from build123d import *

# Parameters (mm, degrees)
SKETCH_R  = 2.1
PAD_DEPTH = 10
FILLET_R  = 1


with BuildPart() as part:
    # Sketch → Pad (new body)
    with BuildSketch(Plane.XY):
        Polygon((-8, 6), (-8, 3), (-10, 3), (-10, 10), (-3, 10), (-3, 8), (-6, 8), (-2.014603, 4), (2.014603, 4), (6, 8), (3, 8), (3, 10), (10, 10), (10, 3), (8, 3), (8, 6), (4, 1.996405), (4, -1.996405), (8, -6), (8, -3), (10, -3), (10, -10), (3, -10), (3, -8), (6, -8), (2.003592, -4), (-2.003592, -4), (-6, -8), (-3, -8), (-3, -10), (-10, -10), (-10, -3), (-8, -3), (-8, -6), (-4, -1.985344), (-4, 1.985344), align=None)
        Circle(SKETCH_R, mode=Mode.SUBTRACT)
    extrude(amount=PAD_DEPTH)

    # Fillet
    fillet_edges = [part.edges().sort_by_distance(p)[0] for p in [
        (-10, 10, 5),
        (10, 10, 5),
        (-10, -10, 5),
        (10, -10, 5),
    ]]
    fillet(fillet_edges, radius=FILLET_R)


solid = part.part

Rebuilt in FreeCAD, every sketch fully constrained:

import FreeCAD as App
import Part
import Sketcher
Q = App.Units.Quantity


def edges_at(feature, points):
    """Names of the edges that pass closest to the given points."""
    edges = feature.Shape.Edges
    near = lambda p: min(range(len(edges)), key=lambda i: edges[i].distToShape(Part.Vertex(*p))[0])
    return sorted({f"Edge{near(p) + 1}" for p in points})

doc = App.newDocument("Part")
params = doc.addObject("Spreadsheet::Sheet", "Params")
for row, (alias, value) in enumerate([
    ("sketch1_diameter", "4.2 mm"),
    ("sketch1_width", "2 mm"),
    ("sketch1_width2", "7 mm"),
    ("sketch1_width3", "3 mm"),
    ("pad1_length", "10 mm"),
    ("fillet_radius", "1 mm"),
], start=1):
    params.set(f"A{row}", alias)
    params.set(f"B{row}", "=" + value)
    params.setAlias(f"B{row}", alias)

body = doc.addObject("PartDesign::Body", "Body")

sketch1 = body.newObject("Sketcher::SketchObject", "Sketch")
sketch1.AttachmentSupport = (doc.getObject("XY_Plane"), [""])
sketch1.MapMode = "FlatFace"
sketch1.addGeometry(Part.LineSegment(App.Vector(-8, 3, 0), App.Vector(-8, 6, 0)), False)
sketch1.addGeometry(Part.LineSegment(App.Vector(-8, 6, 0), App.Vector(-4, 1.985344, 0)), False)
sketch1.addGeometry(Part.LineSegment(App.Vector(-4, 1.985344, 0), App.Vector(-4, -1.985344, 0)), False)
sketch1.addGeometry(Part.LineSegment(App.Vector(-4, -1.985344, 0), App.Vector(-8, -6, 0)), False)
sketch1.addGeometry(Part.LineSegment(App.Vector(-8, -6, 0), App.Vector(-8, -3, 0)), False)
sketch1.addGeometry(Part.LineSegment(App.Vector(-8, -3, 0), App.Vector(-10, -3, 0)), False)
sketch1.addGeometry(Part.LineSegment(App.Vector(-10, -3, 0), App.Vector(-10, -10, 0)), False)
sketch1.addGeometry(Part.LineSegment(App.Vector(-10, -10, 0), App.Vector(-3, -10, 0)), False)
sketch1.addGeometry(Part.LineSegment(App.Vector(-3, -10, 0), App.Vector(-3, -8, 0)), False)
sketch1.addGeometry(Part.LineSegment(App.Vector(-3, -8, 0), App.Vector(-6, -8, 0)), False)
sketch1.addGeometry(Part.LineSegment(App.Vector(-6, -8, 0), App.Vector(-2.003592, -4, 0)), False)
sketch1.addGeometry(Part.LineSegment(App.Vector(-2.003592, -4, 0), App.Vector(2.003592, -4, 0)), False)
sketch1.addGeometry(Part.LineSegment(App.Vector(2.003592, -4, 0), App.Vector(6, -8, 0)), False)
sketch1.addGeometry(Part.LineSegment(App.Vector(6, -8, 0), App.Vector(3, -8, 0)), False)
sketch1.addGeometry(Part.LineSegment(App.Vector(3, -8, 0), App.Vector(3, -10, 0)), False)
sketch1.addGeometry(Part.LineSegment(App.Vector(3, -10, 0), App.Vector(10, -10, 0)), False)
sketch1.addGeometry(Part.LineSegment(App.Vector(10, -10, 0), App.Vector(10, -3, 0)), False)
sketch1.addGeometry(Part.LineSegment(App.Vector(10, -3, 0), App.Vector(8, -3, 0)), False)
sketch1.addGeometry(Part.LineSegment(App.Vector(8, -3, 0), App.Vector(8, -6, 0)), False)
sketch1.addGeometry(Part.LineSegment(App.Vector(8, -6, 0), App.Vector(4, -1.996405, 0)), False)
sketch1.addGeometry(Part.LineSegment(App.Vector(4, -1.996405, 0), App.Vector(4, 1.996405, 0)), False)
sketch1.addGeometry(Part.LineSegment(App.Vector(4, 1.996405, 0), App.Vector(8, 6, 0)), False)
sketch1.addGeometry(Part.LineSegment(App.Vector(8, 6, 0), App.Vector(8, 3, 0)), False)
sketch1.addGeometry(Part.LineSegment(App.Vector(8, 3, 0), App.Vector(10, 3, 0)), False)
sketch1.addGeometry(Part.LineSegment(App.Vector(10, 3, 0), App.Vector(10, 10, 0)), False)
sketch1.addGeometry(Part.LineSegment(App.Vector(10, 10, 0), App.Vector(3, 10, 0)), False)
sketch1.addGeometry(Part.LineSegment(App.Vector(3, 10, 0), App.Vector(3, 8, 0)), False)
sketch1.addGeometry(Part.LineSegment(App.Vector(3, 8, 0), App.Vector(6, 8, 0)), False)
sketch1.addGeometry(Part.LineSegment(App.Vector(6, 8, 0), App.Vector(2.014603, 4, 0)), False)
sketch1.addGeometry(Part.LineSegment(App.Vector(2.014603, 4, 0), App.Vector(-2.014603, 4, 0)), False)
sketch1.addGeometry(Part.LineSegment(App.Vector(-2.014603, 4, 0), App.Vector(-6, 8, 0)), False)
sketch1.addGeometry(Part.LineSegment(App.Vector(-6, 8, 0), App.Vector(-3, 8, 0)), False)
sketch1.addGeometry(Part.LineSegment(App.Vector(-3, 8, 0), App.Vector(-3, 10, 0)), False)
sketch1.addGeometry(Part.LineSegment(App.Vector(-3, 10, 0), App.Vector(-10, 10, 0)), False)
sketch1.addGeometry(Part.LineSegment(App.Vector(-10, 10, 0), App.Vector(-10, 3, 0)), False)
sketch1.addGeometry(Part.LineSegment(App.Vector(-10, 3, 0), App.Vector(-8, 3, 0)), False)
sketch1.addGeometry(Part.Circle(App.Vector(0, 0, 0), App.Vector(0, 0, 1), 2.1), False)
sketch1.addConstraint(Sketcher.Constraint("Coincident", 0, 2, 1, 1))
sketch1.addConstraint(Sketcher.Constraint("Coincident", 1, 2, 2, 1))
sketch1.addConstraint(Sketcher.Constraint("Coincident", 2, 2, 3, 1))
sketch1.addConstraint(Sketcher.Constraint("Coincident", 3, 2, 4, 1))
sketch1.addConstraint(Sketcher.Constraint("Coincident", 4, 2, 5, 1))
sketch1.addConstraint(Sketcher.Constraint("Coincident", 5, 2, 6, 1))
sketch1.addConstraint(Sketcher.Constraint("Coincident", 6, 2, 7, 1))
sketch1.addConstraint(Sketcher.Constraint("Coincident", 7, 2, 8, 1))
sketch1.addConstraint(Sketcher.Constraint("Coincident", 8, 2, 9, 1))
sketch1.addConstraint(Sketcher.Constraint("Coincident", 9, 2, 10, 1))
sketch1.addConstraint(Sketcher.Constraint("Coincident", 10, 2, 11, 1))
sketch1.addConstraint(Sketcher.Constraint("Coincident", 11, 2, 12, 1))
sketch1.addConstraint(Sketcher.Constraint("Coincident", 12, 2, 13, 1))
sketch1.addConstraint(Sketcher.Constraint("Coincident", 13, 2, 14, 1))
sketch1.addConstraint(Sketcher.Constraint("Coincident", 14, 2, 15, 1))
sketch1.addConstraint(Sketcher.Constraint("Coincident", 15, 2, 16, 1))
sketch1.addConstraint(Sketcher.Constraint("Coincident", 16, 2, 17, 1))
sketch1.addConstraint(Sketcher.Constraint("Coincident", 17, 2, 18, 1))
sketch1.addConstraint(Sketcher.Constraint("Coincident", 18, 2, 19, 1))
sketch1.addConstraint(Sketcher.Constraint("Coincident", 19, 2, 20, 1))
sketch1.addConstraint(Sketcher.Constraint("Coincident", 20, 2, 21, 1))
sketch1.addConstraint(Sketcher.Constraint("Coincident", 21, 2, 22, 1))
sketch1.addConstraint(Sketcher.Constraint("Coincident", 22, 2, 23, 1))
sketch1.addConstraint(Sketcher.Constraint("Coincident", 23, 2, 24, 1))
sketch1.addConstraint(Sketcher.Constraint("Coincident", 24, 2, 25, 1))
sketch1.addConstraint(Sketcher.Constraint("Coincident", 25, 2, 26, 1))
sketch1.addConstraint(Sketcher.Constraint("Coincident", 26, 2, 27, 1))
sketch1.addConstraint(Sketcher.Constraint("Coincident", 27, 2, 28, 1))
sketch1.addConstraint(Sketcher.Constraint("Coincident", 28, 2, 29, 1))
sketch1.addConstraint(Sketcher.Constraint("Coincident", 29, 2, 30, 1))
sketch1.addConstraint(Sketcher.Constraint("Coincident", 30, 2, 31, 1))
sketch1.addConstraint(Sketcher.Constraint("Coincident", 31, 2, 32, 1))
sketch1.addConstraint(Sketcher.Constraint("Coincident", 32, 2, 33, 1))
sketch1.addConstraint(Sketcher.Constraint("Coincident", 33, 2, 34, 1))
sketch1.addConstraint(Sketcher.Constraint("Coincident", 34, 2, 35, 1))
sketch1.addConstraint(Sketcher.Constraint("Coincident", 35, 2, 0, 1))
sketch1.addConstraint(Sketcher.Constraint("Vertical", 0))
sketch1.addConstraint(Sketcher.Constraint("Vertical", 2))
sketch1.addConstraint(Sketcher.Constraint("Vertical", 4))
sketch1.addConstraint(Sketcher.Constraint("Horizontal", 5))
sketch1.addConstraint(Sketcher.Constraint("Vertical", 6))
sketch1.addConstraint(Sketcher.Constraint("Horizontal", 7))
sketch1.addConstraint(Sketcher.Constraint("Vertical", 8))
sketch1.addConstraint(Sketcher.Constraint("Horizontal", 9))
sketch1.addConstraint(Sketcher.Constraint("Horizontal", 11))
sketch1.addConstraint(Sketcher.Constraint("Horizontal", 13))
sketch1.addConstraint(Sketcher.Constraint("Vertical", 14))
sketch1.addConstraint(Sketcher.Constraint("Horizontal", 15))
sketch1.addConstraint(Sketcher.Constraint("Vertical", 16))
sketch1.addConstraint(Sketcher.Constraint("Horizontal", 17))
sketch1.addConstraint(Sketcher.Constraint("Vertical", 18))
sketch1.addConstraint(Sketcher.Constraint("Vertical", 20))
sketch1.addConstraint(Sketcher.Constraint("Vertical", 22))
sketch1.addConstraint(Sketcher.Constraint("Horizontal", 23))
sketch1.addConstraint(Sketcher.Constraint("Vertical", 24))
sketch1.addConstraint(Sketcher.Constraint("Horizontal", 25))
sketch1.addConstraint(Sketcher.Constraint("Vertical", 26))
sketch1.addConstraint(Sketcher.Constraint("Horizontal", 27))
sketch1.addConstraint(Sketcher.Constraint("Horizontal", 29))
sketch1.addConstraint(Sketcher.Constraint("Horizontal", 31))
sketch1.addConstraint(Sketcher.Constraint("Vertical", 32))
sketch1.addConstraint(Sketcher.Constraint("Horizontal", 33))
sketch1.addConstraint(Sketcher.Constraint("Vertical", 34))
sketch1.addConstraint(Sketcher.Constraint("Horizontal", 35))
sketch1.addConstraint(Sketcher.Constraint("Coincident", 36, 3, -1, 1))
sketch1.addConstraint(Sketcher.Constraint("Symmetric", 0, 2, 18, 2, -1, 1))
sketch1.addConstraint(Sketcher.Constraint("Symmetric", 3, 2, 21, 2, -1, 1))
sketch1.addConstraint(Sketcher.Constraint("Symmetric", 5, 2, 23, 2, -1, 1))
sketch1.addConstraint(Sketcher.Constraint("Symmetric", 7, 2, 25, 2, -1, 1))
sketch1.addConstraint(Sketcher.Constraint("Symmetric", 9, 2, 27, 2, -1, 1))
sketch1.addConstraint(Sketcher.Constraint("Symmetric", 12, 2, 30, 2, -1, 1))
sketch1.addConstraint(Sketcher.Constraint("Symmetric", 14, 2, 32, 2, -1, 1))
sketch1.addConstraint(Sketcher.Constraint("Symmetric", 16, 2, 34, 2, -1, 1))
sketch1.addConstraint(Sketcher.Constraint("Symmetric", 9, 2, 12, 2, -2))
sketch1.addConstraint(Sketcher.Constraint("Symmetric", 7, 2, 14, 2, -2))
sketch1.addConstraint(Sketcher.Constraint("Symmetric", 5, 2, 16, 2, -2))
sketch1.addConstraint(Sketcher.Constraint("Symmetric", 3, 2, 18, 2, -2))
sketch1.addConstraint(Sketcher.Constraint("Parallel", 12, 19))
sketch1.addConstraint(Sketcher.Constraint("Parallel", 10, 21))
sketch1.addConstraint(Sketcher.Constraint("Parallel", 3, 28))
sketch1.addConstraint(Sketcher.Constraint("Parallel", 1, 30))
sketch1.addConstraint(Sketcher.Constraint("Equal", 31, 0))
sketch1.addConstraint(Sketcher.Constraint("Equal", 33, 6))
sketch1.addConstraint(Sketcher.Constraint("Equal", 35, 8))
sketch1.addConstraint(Sketcher.Constraint("Equal", 1, 3))
sketch1.addConstraint(Sketcher.Constraint("Equal", 10, 12))
sketch1.addConstraint(Sketcher.Constraint("Diameter", 36, Q("4.2 mm")))
sketch1.addConstraint(Sketcher.Constraint("DistanceX", 5, 2, 5, 1, Q("2 mm")))
sketch1.addConstraint(Sketcher.Constraint("DistanceX", 7, 1, 7, 2, Q("7 mm")))
sketch1.addConstraint(Sketcher.Constraint("DistanceX", 9, 2, 9, 1, Q("3 mm")))
sketch1.addConstraint(Sketcher.Constraint("DistanceX", 0, 2, -1, 1, Q("8 mm")))
sketch1.addConstraint(Sketcher.Constraint("DistanceY", -1, 1, 0, 2, Q("6 mm")))
sketch1.addConstraint(Sketcher.Constraint("DistanceX", 1, 2, -1, 1, Q("4 mm")))
sketch1.addConstraint(Sketcher.Constraint("DistanceY", 10, 2, -1, 1, Q("4 mm")))
sketch1.addConstraint(Sketcher.Constraint("DistanceX", -1, 1, 19, 2, Q("4 mm")))
sketch1.addConstraint(Sketcher.Constraint("DistanceY", -1, 1, 28, 2, Q("4 mm")))
sketch1.addConstraint(Sketcher.Constraint("DistanceY", 2, 2, 2, 1, Q("3.970688 mm")))
sketch1.addConstraint(Sketcher.Constraint("DistanceY", 20, 1, 20, 2, Q("3.99281 mm")))
sketch1.setExpression("Constraints[86]", "Params.sketch1_diameter")
sketch1.setExpression("Constraints[87]", "Params.sketch1_width")
sketch1.setExpression("Constraints[88]", "Params.sketch1_width2")
sketch1.setExpression("Constraints[89]", "Params.sketch1_width3")
pad1 = body.newObject("PartDesign::Pad", "Pad")
pad1.Profile = sketch1
pad1.setExpression("Length", "Params.pad1_length")
doc.recompute()

fillet = body.newObject("PartDesign::Fillet", "Fillet")
fillet.Base = (pad1, edges_at(pad1, [
    (-10, 10, 5),
    (10, 10, 5),
    (-10, -10, 5),
    (10, -10, 5),
]))
fillet.setExpression("Radius", "Params.fillet_radius")

doc.recompute()
